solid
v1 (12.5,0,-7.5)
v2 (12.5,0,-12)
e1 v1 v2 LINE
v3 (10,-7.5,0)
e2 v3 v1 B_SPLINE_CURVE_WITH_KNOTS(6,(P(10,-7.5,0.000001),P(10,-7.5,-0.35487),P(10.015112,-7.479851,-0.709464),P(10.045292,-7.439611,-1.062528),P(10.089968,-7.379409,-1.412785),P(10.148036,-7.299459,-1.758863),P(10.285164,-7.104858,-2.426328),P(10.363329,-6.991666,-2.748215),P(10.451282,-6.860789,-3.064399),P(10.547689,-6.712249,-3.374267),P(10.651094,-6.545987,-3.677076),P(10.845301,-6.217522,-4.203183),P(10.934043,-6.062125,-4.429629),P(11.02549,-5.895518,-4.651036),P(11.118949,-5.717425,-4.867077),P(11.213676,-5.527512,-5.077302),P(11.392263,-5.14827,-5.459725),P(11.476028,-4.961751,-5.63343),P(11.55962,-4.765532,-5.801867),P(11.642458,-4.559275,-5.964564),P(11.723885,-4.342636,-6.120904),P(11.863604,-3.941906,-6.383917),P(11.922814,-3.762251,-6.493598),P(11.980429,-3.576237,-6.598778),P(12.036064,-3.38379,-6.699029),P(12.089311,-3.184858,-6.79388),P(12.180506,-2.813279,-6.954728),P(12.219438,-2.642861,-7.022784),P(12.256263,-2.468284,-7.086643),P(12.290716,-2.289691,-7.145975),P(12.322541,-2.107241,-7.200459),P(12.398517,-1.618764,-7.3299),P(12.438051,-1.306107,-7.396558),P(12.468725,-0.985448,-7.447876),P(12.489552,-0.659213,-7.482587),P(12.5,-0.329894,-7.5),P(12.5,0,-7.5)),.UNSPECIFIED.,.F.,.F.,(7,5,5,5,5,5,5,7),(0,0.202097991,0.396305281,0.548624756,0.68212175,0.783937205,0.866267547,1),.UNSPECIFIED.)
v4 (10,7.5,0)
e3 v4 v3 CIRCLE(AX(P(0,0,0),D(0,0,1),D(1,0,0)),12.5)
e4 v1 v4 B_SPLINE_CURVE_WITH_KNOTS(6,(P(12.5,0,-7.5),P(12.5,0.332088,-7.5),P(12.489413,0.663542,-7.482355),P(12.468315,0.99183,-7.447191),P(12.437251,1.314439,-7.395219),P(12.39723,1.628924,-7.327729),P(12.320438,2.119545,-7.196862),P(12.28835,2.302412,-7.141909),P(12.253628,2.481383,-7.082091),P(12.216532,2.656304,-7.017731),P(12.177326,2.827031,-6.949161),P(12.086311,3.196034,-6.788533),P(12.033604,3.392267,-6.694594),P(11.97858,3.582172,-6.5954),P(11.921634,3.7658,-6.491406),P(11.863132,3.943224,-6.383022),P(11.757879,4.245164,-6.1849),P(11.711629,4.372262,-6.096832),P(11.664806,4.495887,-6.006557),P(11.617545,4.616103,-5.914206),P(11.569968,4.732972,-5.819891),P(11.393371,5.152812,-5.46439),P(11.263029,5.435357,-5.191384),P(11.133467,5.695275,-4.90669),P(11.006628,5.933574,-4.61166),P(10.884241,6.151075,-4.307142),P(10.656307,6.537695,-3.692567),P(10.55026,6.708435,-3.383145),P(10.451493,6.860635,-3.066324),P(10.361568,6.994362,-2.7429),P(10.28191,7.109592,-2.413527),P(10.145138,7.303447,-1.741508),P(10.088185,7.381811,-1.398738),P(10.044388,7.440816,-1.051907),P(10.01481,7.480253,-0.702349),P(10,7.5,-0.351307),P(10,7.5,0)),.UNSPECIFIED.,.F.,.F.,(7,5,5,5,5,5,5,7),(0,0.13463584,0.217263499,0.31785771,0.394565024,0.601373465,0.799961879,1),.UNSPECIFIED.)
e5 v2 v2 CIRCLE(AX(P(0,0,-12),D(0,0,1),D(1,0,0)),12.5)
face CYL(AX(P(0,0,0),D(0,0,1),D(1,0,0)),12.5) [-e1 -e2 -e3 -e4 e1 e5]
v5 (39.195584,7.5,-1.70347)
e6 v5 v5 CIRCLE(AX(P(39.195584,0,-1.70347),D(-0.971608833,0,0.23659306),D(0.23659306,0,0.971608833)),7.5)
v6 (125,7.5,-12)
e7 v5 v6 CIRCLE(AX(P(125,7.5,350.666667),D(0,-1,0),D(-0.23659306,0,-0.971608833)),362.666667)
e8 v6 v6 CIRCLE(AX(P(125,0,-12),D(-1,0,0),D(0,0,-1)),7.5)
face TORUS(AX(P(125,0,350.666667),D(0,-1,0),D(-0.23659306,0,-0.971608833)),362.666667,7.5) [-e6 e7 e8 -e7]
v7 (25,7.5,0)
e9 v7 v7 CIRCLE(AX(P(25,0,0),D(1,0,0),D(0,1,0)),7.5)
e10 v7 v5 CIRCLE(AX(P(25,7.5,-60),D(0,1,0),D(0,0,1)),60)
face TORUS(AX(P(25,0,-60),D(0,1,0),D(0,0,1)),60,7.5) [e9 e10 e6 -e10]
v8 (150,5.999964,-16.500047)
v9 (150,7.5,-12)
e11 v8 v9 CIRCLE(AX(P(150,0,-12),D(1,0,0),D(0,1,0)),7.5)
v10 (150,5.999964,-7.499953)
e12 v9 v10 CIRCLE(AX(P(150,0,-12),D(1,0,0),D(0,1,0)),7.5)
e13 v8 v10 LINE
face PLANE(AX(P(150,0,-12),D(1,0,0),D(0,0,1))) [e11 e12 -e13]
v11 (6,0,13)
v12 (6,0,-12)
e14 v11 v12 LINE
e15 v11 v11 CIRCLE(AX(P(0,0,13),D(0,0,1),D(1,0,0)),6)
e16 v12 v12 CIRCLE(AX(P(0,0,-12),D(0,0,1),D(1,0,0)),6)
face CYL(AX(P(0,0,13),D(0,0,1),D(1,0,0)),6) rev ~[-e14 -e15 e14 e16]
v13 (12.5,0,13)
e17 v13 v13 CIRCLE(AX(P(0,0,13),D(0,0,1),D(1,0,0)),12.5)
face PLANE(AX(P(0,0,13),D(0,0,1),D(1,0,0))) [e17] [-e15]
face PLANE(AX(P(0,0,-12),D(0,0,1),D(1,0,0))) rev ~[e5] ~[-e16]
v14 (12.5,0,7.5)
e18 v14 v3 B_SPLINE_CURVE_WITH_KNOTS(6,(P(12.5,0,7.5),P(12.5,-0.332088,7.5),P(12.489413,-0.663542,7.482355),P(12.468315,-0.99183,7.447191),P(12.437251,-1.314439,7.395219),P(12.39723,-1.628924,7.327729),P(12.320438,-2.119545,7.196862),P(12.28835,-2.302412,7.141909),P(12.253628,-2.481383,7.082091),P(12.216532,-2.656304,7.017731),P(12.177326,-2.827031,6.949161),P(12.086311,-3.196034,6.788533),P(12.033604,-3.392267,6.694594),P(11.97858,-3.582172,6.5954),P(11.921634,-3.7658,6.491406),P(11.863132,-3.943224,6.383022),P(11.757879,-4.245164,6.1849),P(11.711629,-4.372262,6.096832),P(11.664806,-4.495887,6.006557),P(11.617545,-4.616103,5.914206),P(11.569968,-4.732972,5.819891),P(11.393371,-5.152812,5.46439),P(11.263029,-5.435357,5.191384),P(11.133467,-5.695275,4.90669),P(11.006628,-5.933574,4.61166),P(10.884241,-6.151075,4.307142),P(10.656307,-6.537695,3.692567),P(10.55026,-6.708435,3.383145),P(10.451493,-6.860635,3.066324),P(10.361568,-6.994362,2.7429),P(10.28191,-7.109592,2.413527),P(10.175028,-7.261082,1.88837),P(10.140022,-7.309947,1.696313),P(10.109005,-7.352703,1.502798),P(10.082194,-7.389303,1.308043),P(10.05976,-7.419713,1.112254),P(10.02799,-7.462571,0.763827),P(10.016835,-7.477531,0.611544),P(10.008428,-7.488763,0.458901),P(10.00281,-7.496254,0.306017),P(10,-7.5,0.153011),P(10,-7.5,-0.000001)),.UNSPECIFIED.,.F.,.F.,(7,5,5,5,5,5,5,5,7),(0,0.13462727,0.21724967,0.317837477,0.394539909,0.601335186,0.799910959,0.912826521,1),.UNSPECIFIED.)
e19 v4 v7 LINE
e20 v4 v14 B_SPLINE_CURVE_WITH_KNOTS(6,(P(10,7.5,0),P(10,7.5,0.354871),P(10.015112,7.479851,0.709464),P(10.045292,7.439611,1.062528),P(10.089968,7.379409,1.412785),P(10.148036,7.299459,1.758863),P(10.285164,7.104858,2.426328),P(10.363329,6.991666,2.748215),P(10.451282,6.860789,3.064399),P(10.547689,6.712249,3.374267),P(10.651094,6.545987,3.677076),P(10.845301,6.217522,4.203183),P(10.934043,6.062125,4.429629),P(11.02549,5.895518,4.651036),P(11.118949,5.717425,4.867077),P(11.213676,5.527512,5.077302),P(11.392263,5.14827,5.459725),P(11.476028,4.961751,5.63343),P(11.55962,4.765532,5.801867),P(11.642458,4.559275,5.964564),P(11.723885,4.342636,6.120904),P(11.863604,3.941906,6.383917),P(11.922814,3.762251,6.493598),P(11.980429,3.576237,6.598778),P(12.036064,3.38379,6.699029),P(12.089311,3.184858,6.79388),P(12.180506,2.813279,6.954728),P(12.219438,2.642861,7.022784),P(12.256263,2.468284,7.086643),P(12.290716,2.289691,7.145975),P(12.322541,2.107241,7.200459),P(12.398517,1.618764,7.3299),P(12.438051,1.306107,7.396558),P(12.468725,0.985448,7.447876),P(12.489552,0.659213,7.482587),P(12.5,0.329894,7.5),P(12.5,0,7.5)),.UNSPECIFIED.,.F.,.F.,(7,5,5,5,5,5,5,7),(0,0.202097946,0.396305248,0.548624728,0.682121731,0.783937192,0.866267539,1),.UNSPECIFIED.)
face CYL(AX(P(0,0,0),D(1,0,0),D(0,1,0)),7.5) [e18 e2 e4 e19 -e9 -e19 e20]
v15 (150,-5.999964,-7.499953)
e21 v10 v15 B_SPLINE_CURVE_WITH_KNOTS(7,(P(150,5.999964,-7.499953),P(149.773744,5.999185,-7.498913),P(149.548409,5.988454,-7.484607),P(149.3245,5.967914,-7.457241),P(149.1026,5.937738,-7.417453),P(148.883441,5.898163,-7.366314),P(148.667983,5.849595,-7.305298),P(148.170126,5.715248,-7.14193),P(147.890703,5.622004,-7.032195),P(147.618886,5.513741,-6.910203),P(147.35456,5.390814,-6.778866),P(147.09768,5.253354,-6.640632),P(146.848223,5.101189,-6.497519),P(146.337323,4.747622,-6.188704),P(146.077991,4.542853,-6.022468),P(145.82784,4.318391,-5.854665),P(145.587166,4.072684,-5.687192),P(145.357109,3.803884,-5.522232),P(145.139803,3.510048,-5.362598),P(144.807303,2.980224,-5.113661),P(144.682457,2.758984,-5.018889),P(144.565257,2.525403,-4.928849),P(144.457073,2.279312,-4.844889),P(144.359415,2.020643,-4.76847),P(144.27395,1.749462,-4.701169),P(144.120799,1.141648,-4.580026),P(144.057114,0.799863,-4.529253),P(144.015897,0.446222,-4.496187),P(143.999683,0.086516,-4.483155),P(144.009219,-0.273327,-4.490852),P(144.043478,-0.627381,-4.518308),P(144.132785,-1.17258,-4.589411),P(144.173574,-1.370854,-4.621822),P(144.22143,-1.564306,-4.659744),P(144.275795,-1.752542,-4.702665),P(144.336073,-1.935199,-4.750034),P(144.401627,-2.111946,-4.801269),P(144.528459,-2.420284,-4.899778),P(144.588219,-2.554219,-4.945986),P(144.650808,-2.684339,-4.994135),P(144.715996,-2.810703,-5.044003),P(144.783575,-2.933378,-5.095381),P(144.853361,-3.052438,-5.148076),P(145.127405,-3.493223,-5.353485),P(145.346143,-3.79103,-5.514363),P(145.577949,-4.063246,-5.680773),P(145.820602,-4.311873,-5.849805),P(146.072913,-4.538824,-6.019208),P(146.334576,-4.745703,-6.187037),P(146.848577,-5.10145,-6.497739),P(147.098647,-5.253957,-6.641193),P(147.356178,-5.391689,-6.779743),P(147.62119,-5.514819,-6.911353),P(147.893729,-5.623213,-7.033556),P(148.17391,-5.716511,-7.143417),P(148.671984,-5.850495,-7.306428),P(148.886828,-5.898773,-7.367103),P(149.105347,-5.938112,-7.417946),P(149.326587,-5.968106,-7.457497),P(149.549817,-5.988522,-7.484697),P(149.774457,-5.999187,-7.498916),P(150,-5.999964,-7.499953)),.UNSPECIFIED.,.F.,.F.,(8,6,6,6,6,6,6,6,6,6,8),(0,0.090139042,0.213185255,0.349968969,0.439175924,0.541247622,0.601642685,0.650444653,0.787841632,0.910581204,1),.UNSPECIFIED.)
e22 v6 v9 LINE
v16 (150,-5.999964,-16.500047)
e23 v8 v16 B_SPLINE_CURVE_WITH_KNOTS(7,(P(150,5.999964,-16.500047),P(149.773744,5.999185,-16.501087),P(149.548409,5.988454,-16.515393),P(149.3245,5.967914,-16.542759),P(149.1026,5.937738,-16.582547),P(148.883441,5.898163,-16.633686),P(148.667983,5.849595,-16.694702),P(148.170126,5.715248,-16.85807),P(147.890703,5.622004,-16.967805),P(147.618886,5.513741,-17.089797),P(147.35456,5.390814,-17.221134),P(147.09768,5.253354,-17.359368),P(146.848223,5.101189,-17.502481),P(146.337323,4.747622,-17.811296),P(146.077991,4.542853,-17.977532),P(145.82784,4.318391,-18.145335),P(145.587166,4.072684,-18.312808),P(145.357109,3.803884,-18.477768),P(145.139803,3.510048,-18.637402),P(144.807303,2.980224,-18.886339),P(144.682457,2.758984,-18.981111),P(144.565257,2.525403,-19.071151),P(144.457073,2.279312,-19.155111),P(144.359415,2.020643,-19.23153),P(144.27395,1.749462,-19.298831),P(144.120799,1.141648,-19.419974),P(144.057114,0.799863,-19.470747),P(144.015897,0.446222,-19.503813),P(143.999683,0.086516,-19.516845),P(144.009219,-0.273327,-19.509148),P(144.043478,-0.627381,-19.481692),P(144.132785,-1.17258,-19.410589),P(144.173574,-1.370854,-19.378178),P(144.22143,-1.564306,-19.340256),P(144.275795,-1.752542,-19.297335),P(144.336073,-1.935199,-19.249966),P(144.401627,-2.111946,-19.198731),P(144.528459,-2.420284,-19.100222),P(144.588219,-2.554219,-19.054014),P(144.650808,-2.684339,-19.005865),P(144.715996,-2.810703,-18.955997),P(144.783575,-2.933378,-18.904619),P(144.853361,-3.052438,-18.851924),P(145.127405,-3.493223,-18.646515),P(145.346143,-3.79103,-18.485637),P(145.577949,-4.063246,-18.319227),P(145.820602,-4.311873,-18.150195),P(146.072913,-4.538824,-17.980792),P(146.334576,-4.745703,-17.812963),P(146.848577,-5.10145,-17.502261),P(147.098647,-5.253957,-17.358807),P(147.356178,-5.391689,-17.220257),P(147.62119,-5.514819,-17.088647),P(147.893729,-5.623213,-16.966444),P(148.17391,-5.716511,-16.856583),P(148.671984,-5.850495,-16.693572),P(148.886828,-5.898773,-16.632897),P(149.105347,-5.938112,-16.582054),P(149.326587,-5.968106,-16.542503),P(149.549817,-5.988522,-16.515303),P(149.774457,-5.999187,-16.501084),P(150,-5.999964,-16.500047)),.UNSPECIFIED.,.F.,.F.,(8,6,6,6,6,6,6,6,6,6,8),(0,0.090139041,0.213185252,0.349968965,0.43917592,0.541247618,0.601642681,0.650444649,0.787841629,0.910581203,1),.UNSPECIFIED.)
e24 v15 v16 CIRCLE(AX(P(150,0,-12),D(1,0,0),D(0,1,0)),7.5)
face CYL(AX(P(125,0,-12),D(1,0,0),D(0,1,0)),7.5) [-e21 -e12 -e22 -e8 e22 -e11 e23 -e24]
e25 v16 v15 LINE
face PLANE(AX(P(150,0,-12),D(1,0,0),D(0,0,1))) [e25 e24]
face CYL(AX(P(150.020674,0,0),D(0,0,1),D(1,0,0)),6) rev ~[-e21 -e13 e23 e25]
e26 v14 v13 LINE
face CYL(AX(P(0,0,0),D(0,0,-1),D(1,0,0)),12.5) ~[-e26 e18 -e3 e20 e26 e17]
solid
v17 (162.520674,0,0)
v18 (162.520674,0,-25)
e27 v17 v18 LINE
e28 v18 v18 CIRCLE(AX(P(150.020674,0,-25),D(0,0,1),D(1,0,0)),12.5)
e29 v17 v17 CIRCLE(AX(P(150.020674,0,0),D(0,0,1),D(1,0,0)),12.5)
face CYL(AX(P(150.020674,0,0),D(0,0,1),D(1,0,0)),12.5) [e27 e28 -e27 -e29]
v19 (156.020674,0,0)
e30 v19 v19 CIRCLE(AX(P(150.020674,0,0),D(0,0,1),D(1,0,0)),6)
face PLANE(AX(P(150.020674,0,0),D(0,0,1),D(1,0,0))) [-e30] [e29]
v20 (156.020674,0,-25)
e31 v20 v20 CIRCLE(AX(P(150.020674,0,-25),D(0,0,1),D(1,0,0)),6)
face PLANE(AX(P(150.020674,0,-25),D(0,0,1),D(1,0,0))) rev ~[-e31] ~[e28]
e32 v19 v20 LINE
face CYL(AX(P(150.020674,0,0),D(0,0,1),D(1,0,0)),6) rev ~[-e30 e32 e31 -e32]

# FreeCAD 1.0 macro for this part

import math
import FreeCAD as App
import Part
import Sketcher
from FreeCAD import Vector
Q = App.Units.Quantity

doc = App.newDocument("Part")
body = doc.addObject("PartDesign::Body", "Body")

# Sketch on YZ plane
sketch1 = body.newObject("Sketcher::SketchObject", "Sketch")
sketch1.AttachmentSupport = (doc.getObject("YZ_Plane"), [""])
sketch1.MapMode = "FlatFace"
sketch1.addGeometry(Part.Circle(Vector(0, 0, 0), Vector(0, 0, 1), 8), False)
sketch1.addConstraint([
    Sketcher.Constraint("Coincident", 0, 3, -1, 1),
    Sketcher.Constraint("Diameter", 0, Q("15 mm")),
])

# Sketch on XZ plane
sketch2 = body.newObject("Sketcher::SketchObject", "Sketch001")
sketch2.AttachmentSupport = (doc.getObject("XZ_Plane"), [""])
sketch2.MapMode = "FlatFace"
sketch2.addGeometry([
    Part.LineSegment(Vector(0, 0, 0), Vector(25, 0, 0)),
    Part.ArcOfCircle(Part.Circle(Vector(25, -60, 0), Vector(0, 0, 1), 60), math.radians(76.31), math.radians(90)),
    Part.ArcOfCircle(Part.Circle(Vector(125, 351, 0), Vector(0, 0, 1), 363), math.radians(-103.69), math.radians(-90)),
    Part.LineSegment(Vector(125, -12, 0), Vector(150, -12, 0)),
], False)
sketch2.addConstraint([
    Sketcher.Constraint("Tangent", 0, 2, 1, 2),
    Sketcher.Constraint("Tangent", 1, 1, 2, 1),
    Sketcher.Constraint("Tangent", 2, 2, 3, 1),
    Sketcher.Constraint("Horizontal", 0),
    Sketcher.Constraint("Horizontal", 3),
    Sketcher.Constraint("Coincident", 0, 1, -1, 1),
    Sketcher.Constraint("Equal", 0, 3),
    Sketcher.Constraint("Radius", 1, Q("60 mm")),
    Sketcher.Constraint("DistanceX", 0, 1, 0, 2, Q("25 mm")),
    Sketcher.Constraint("DistanceX", -1, 1, 2, 3, Q("125 mm")),
    Sketcher.Constraint("DistanceY", 2, 2, -1, 1, Q("12 mm")),
])
doc.recompute()

additivepipe = body.newObject("PartDesign::AdditivePipe", "AdditivePipe")
additivepipe.Profile = sketch1
additivepipe.Spine = (sketch2, ["Edge1", "Edge2", "Edge3", "Edge4"])

# Sketch on XY plane
sketch3 = body.newObject("Sketcher::SketchObject", "Sketch002")
sketch3.AttachmentSupport = (doc.getObject("XY_Plane"), [""])
sketch3.MapMode = "FlatFace"
sketch3.addGeometry(Part.Circle(Vector(0, 0, 0), Vector(0, 0, 1), 12), False)
sketch3.addConstraint([
    Sketcher.Constraint("Coincident", 0, 3, -1, 1),
    Sketcher.Constraint("Diameter", 0, Q("25 mm")),
])
pad1 = body.newObject("PartDesign::Pad", "Pad")
pad1.Profile = sketch3
pad1.Type = "TwoLengths"
pad1.Length = 13
pad1.Length2 = 12

# Sketch on XY plane
sketch4 = body.newObject("Sketcher::SketchObject", "Sketch003")
sketch4.AttachmentSupport = (doc.getObject("XY_Plane"), [""])
sketch4.MapMode = "FlatFace"
sketch4.AttachmentOffset = App.Placement(Vector(0, 0, 13), App.Rotation())
sketch4.addGeometry(Part.Circle(Vector(0, 0, 0), Vector(0, 0, 1), 6), False)
sketch4.addConstraint([
    Sketcher.Constraint("Coincident", 0, 3, -1, 1),
    Sketcher.Constraint("Diameter", 0, Q("12 mm")),
])
pocket1 = body.newObject("PartDesign::Pocket", "Pocket")
pocket1.Profile = sketch4
pocket1.Type = "ThroughAll"
body2 = doc.addObject("PartDesign::Body", "Body001")

# Sketch on XY plane
sketch5 = body2.newObject("Sketcher::SketchObject", "Sketch004")
sketch5.AttachmentSupport = (doc.getObject("XY_Plane001"), [""])
sketch5.MapMode = "FlatFace"
sketch5.addGeometry(Part.Circle(Vector(150, 0, 0), Vector(0, 0, 1), 12), False)
sketch5.addConstraint([
    Sketcher.Constraint("PointOnObject", 0, 3, -1),
    Sketcher.Constraint("Diameter", 0, Q("25 mm")),
    Sketcher.Constraint("DistanceX", -1, 1, 0, 3, Q("150.020674 mm")),
])
pad2 = body2.newObject("PartDesign::Pad", "Pad001")
pad2.Profile = sketch5
pad2.Length = 25
pad2.Reversed = True
body3 = doc.addObject("PartDesign::Body", "Body002")

# Sketch on XY plane
sketch6 = body3.newObject("Sketcher::SketchObject", "Sketch005")
sketch6.AttachmentSupport = (doc.getObject("XY_Plane002"), [""])
sketch6.MapMode = "FlatFace"
sketch6.addGeometry(Part.Circle(Vector(150, 0, 0), Vector(0, 0, 1), 6), False)
sketch6.addConstraint([
    Sketcher.Constraint("PointOnObject", 0, 3, -1),
    Sketcher.Constraint("Diameter", 0, Q("12 mm")),
    Sketcher.Constraint("DistanceX", -1, 1, 0, 3, Q("150.020674 mm")),
])
pad3 = body3.newObject("PartDesign::Pad", "Pad002")
pad3.Profile = sketch6
pad3.Length = 25.001
pad3.Reversed = True
doc.recompute()

body4 = doc.addObject("PartDesign::Body", "Body003")
body4.BaseFeature = body3
boolean = body.newObject("PartDesign::Boolean", "Boolean")
boolean.Type = "Cut"
boolean.addObjects([body4])
doc.recompute()

boolean2 = body2.newObject("PartDesign::Boolean", "Boolean001")
boolean2.Type = "Cut"
boolean2.addObjects([body3])

doc.recompute()
